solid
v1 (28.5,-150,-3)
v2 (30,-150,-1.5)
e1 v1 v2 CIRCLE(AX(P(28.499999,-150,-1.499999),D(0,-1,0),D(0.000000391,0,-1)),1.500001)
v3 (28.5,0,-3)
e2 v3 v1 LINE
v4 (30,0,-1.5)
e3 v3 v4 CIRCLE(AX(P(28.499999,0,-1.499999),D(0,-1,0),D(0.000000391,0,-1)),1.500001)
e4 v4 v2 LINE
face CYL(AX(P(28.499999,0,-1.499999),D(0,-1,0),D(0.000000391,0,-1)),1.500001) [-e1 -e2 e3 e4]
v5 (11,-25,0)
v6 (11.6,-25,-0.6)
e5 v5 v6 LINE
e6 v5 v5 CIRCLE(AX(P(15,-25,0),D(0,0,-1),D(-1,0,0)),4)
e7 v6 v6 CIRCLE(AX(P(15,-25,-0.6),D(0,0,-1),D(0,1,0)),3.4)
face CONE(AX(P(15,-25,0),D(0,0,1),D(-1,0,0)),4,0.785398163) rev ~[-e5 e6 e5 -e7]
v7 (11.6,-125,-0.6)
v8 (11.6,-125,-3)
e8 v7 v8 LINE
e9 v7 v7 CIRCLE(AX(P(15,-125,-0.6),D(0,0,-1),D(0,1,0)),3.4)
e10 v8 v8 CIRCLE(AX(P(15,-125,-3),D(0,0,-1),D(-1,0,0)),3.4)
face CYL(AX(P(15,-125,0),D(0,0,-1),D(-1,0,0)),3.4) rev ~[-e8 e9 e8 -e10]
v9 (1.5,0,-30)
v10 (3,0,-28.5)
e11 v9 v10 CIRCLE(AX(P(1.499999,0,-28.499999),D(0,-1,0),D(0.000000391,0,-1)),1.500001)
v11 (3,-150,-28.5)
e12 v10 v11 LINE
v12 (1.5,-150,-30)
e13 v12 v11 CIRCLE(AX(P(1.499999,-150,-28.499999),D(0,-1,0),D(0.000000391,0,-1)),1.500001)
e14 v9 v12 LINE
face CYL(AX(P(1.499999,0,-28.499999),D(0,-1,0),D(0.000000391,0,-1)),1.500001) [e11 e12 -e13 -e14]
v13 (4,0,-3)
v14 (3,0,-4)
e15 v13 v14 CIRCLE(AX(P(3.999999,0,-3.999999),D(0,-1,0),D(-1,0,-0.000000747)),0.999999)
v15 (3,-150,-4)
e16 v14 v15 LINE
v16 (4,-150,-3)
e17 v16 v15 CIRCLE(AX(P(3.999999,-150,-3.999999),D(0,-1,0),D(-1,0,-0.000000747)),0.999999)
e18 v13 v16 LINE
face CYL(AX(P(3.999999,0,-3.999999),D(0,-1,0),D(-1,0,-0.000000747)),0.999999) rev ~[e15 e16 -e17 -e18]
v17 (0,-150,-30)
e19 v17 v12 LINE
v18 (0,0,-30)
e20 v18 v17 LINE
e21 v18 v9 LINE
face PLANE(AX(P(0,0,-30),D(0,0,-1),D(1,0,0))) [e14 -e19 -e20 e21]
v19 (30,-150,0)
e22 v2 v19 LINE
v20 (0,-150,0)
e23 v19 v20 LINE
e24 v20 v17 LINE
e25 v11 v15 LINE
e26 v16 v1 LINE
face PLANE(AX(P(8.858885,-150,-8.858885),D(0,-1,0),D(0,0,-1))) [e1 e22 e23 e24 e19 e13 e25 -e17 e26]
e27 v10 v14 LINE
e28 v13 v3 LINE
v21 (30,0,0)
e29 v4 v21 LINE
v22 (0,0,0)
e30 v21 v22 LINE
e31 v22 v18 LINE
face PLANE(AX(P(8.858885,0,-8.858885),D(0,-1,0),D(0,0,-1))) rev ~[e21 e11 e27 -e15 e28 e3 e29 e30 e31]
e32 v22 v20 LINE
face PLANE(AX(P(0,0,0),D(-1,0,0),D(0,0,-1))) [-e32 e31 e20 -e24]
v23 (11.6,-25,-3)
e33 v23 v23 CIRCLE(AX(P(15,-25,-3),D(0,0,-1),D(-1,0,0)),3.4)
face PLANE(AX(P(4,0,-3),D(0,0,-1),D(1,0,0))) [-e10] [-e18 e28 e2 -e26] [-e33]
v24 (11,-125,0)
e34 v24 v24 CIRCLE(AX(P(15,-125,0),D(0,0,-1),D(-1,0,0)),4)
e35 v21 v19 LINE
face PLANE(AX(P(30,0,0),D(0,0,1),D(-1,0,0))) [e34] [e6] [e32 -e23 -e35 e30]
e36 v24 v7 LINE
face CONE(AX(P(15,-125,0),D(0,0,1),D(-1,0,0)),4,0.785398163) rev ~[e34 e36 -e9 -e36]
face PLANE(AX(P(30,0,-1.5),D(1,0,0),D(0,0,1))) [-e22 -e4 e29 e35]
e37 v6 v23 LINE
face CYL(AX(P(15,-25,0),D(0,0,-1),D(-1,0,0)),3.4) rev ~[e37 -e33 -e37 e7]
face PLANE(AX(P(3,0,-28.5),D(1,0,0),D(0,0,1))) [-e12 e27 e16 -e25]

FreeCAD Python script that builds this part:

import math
import FreeCAD as App
import Part
import Sketcher

V = App.Vector
Q = App.Units.Quantity

doc = App.newDocument("Part")
body = doc.addObject("PartDesign::Body", "Body")

# Sketch on XZ plane
sketch1 = doc.addObject("Sketcher::SketchObject", "Sketch")
body.addObject(sketch1)
sketch1.AttachmentSupport = (doc.XZ_Plane, [""])
sketch1.MapMode = "FlatFace"
sketch1.addGeometry(Part.LineSegment(V(30, 0, 0), V(0, 0, 0)), False)
sketch1.addGeometry(Part.LineSegment(V(0, 0, 0), V(0, -30, 0)), False)
sketch1.addGeometry(Part.LineSegment(V(0, -30, 0), V(1.5, -30, 0)), False)
sketch1.addGeometry(Part.ArcOfCircle(Part.Circle(V(1.499999, -28.499999, 0), V(0, 0, 1), 1.500001), math.radians(-89.999978), math.radians(-0.000022)), False)
sketch1.addGeometry(Part.LineSegment(V(3, -28.5, 0), V(3, -4, 0)), False)
sketch1.addGeometry(Part.ArcOfCircle(Part.Circle(V(3.999999, -3.999999, 0), V(0, 0, 1), 0.999999), math.radians(89.999957), math.radians(180.000043)), False)
sketch1.addGeometry(Part.LineSegment(V(4, -3, 0), V(28.5, -3, 0)), False)
sketch1.addGeometry(Part.ArcOfCircle(Part.Circle(V(28.499999, -1.499999, 0), V(0, 0, 1), 1.500001), math.radians(-89.999978), math.radians(-0.000022)), False)
sketch1.addGeometry(Part.LineSegment(V(30, -1.5, 0), V(30, 0, 0)), False)
sketch1.addConstraint(Sketcher.Constraint("Coincident", 0, 2, 1, 1))
sketch1.addConstraint(Sketcher.Constraint("Coincident", 1, 2, 2, 1))
sketch1.addConstraint(Sketcher.Constraint("Tangent", 2, 2, 3, 1))
sketch1.addConstraint(Sketcher.Constraint("Tangent", 3, 2, 4, 1))
sketch1.addConstraint(Sketcher.Constraint("Tangent", 4, 2, 5, 2))
sketch1.addConstraint(Sketcher.Constraint("Tangent", 5, 1, 6, 1))
sketch1.addConstraint(Sketcher.Constraint("Tangent", 6, 2, 7, 1))
sketch1.addConstraint(Sketcher.Constraint("Tangent", 7, 2, 8, 1))
sketch1.addConstraint(Sketcher.Constraint("Coincident", 8, 2, 0, 1))
sketch1.addConstraint(Sketcher.Constraint("Horizontal", 0))
sketch1.addConstraint(Sketcher.Constraint("Vertical", 1))
sketch1.addConstraint(Sketcher.Constraint("Horizontal", 2))
sketch1.addConstraint(Sketcher.Constraint("Vertical", 4))
sketch1.addConstraint(Sketcher.Constraint("Horizontal", 6))
sketch1.addConstraint(Sketcher.Constraint("Vertical", 8))
sketch1.addConstraint(Sketcher.Constraint("Coincident", 0, 2, -1, 1))
sketch1.addConstraint(Sketcher.Constraint("Equal", 3, 7))
sketch1.addConstraint(Sketcher.Constraint("Equal", 0, 1))
sketch1.addConstraint(Sketcher.Constraint("Equal", 6, 4))
sketch1.addConstraint(Sketcher.Constraint("Radius", 5, Q("0.999999 mm")))
sketch1.addConstraint(Sketcher.Constraint("Radius", 3, Q("1.500001 mm")))
sketch1.addConstraint(Sketcher.Constraint("DistanceX", 0, 2, 0, 1, Q("30 mm")))
sketch1.addConstraint(Sketcher.Constraint("DistanceX", 2, 1, 2, 2, Q("1.5 mm")))

# Sketch on XY plane
sketch2 = doc.addObject("Sketcher::SketchObject", "Sketch001")
body.addObject(sketch2)
sketch2.AttachmentSupport = (doc.XY_Plane, [""])
sketch2.MapMode = "FlatFace"
sketch2.addGeometry(Part.LineSegment(V(0, 0, 0), V(0, -150, 0)), False)
sketch2.addConstraint(Sketcher.Constraint("Vertical", 0))
sketch2.addConstraint(Sketcher.Constraint("Coincident", 0, 1, -1, 1))
sketch2.addConstraint(Sketcher.Constraint("DistanceY", 0, 2, 0, 1, Q("150 mm")))
doc.recompute()

additivepipe = doc.addObject("PartDesign::AdditivePipe", "AdditivePipe")
body.addObject(additivepipe)
additivepipe.Profile = sketch1
additivepipe.Spine = (sketch2, ["Edge1"])

# Sketch on XY plane
sketch3 = doc.addObject("Sketcher::SketchObject", "Sketch002")
body.addObject(sketch3)
sketch3.AttachmentSupport = (doc.XY_Plane, [""])
sketch3.MapMode = "FlatFace"
sketch3.addGeometry(Part.Circle(V(15, -125, 0), V(0, 0, 1), 3.4), False)
sketch3.addGeometry(Part.Circle(V(15, -25, 0), V(0, 0, 1), 3.4), False)
sketch3.addConstraint(Sketcher.Constraint("Equal", 0, 1))
sketch3.addConstraint(Sketcher.Constraint("Vertical", 0, 3, 1, 3))
sketch3.addConstraint(Sketcher.Constraint("Diameter", 0, Q("6.8 mm")))
sketch3.addConstraint(Sketcher.Constraint("DistanceX", -1, 1, 0, 3, Q("15 mm")))
sketch3.addConstraint(Sketcher.Constraint("DistanceY", 0, 3, -1, 1, Q("125 mm")))
sketch3.addConstraint(Sketcher.Constraint("DistanceY", 1, 3, -1, 1, Q("25 mm")))
doc.recompute()
hole = doc.addObject("PartDesign::Hole", "Hole")
body.addObject(hole)
hole.Profile = sketch3
hole.ThreadType = "None"
hole.Diameter = 6.8
hole.DepthType = "Dimension"
hole.Depth = 5
hole.DrillPoint = "Flat"
hole.HoleCutType = "Countersink"
hole.HoleCutDiameter = 8
hole.HoleCutCountersinkAngle = 90

doc.recompute()
